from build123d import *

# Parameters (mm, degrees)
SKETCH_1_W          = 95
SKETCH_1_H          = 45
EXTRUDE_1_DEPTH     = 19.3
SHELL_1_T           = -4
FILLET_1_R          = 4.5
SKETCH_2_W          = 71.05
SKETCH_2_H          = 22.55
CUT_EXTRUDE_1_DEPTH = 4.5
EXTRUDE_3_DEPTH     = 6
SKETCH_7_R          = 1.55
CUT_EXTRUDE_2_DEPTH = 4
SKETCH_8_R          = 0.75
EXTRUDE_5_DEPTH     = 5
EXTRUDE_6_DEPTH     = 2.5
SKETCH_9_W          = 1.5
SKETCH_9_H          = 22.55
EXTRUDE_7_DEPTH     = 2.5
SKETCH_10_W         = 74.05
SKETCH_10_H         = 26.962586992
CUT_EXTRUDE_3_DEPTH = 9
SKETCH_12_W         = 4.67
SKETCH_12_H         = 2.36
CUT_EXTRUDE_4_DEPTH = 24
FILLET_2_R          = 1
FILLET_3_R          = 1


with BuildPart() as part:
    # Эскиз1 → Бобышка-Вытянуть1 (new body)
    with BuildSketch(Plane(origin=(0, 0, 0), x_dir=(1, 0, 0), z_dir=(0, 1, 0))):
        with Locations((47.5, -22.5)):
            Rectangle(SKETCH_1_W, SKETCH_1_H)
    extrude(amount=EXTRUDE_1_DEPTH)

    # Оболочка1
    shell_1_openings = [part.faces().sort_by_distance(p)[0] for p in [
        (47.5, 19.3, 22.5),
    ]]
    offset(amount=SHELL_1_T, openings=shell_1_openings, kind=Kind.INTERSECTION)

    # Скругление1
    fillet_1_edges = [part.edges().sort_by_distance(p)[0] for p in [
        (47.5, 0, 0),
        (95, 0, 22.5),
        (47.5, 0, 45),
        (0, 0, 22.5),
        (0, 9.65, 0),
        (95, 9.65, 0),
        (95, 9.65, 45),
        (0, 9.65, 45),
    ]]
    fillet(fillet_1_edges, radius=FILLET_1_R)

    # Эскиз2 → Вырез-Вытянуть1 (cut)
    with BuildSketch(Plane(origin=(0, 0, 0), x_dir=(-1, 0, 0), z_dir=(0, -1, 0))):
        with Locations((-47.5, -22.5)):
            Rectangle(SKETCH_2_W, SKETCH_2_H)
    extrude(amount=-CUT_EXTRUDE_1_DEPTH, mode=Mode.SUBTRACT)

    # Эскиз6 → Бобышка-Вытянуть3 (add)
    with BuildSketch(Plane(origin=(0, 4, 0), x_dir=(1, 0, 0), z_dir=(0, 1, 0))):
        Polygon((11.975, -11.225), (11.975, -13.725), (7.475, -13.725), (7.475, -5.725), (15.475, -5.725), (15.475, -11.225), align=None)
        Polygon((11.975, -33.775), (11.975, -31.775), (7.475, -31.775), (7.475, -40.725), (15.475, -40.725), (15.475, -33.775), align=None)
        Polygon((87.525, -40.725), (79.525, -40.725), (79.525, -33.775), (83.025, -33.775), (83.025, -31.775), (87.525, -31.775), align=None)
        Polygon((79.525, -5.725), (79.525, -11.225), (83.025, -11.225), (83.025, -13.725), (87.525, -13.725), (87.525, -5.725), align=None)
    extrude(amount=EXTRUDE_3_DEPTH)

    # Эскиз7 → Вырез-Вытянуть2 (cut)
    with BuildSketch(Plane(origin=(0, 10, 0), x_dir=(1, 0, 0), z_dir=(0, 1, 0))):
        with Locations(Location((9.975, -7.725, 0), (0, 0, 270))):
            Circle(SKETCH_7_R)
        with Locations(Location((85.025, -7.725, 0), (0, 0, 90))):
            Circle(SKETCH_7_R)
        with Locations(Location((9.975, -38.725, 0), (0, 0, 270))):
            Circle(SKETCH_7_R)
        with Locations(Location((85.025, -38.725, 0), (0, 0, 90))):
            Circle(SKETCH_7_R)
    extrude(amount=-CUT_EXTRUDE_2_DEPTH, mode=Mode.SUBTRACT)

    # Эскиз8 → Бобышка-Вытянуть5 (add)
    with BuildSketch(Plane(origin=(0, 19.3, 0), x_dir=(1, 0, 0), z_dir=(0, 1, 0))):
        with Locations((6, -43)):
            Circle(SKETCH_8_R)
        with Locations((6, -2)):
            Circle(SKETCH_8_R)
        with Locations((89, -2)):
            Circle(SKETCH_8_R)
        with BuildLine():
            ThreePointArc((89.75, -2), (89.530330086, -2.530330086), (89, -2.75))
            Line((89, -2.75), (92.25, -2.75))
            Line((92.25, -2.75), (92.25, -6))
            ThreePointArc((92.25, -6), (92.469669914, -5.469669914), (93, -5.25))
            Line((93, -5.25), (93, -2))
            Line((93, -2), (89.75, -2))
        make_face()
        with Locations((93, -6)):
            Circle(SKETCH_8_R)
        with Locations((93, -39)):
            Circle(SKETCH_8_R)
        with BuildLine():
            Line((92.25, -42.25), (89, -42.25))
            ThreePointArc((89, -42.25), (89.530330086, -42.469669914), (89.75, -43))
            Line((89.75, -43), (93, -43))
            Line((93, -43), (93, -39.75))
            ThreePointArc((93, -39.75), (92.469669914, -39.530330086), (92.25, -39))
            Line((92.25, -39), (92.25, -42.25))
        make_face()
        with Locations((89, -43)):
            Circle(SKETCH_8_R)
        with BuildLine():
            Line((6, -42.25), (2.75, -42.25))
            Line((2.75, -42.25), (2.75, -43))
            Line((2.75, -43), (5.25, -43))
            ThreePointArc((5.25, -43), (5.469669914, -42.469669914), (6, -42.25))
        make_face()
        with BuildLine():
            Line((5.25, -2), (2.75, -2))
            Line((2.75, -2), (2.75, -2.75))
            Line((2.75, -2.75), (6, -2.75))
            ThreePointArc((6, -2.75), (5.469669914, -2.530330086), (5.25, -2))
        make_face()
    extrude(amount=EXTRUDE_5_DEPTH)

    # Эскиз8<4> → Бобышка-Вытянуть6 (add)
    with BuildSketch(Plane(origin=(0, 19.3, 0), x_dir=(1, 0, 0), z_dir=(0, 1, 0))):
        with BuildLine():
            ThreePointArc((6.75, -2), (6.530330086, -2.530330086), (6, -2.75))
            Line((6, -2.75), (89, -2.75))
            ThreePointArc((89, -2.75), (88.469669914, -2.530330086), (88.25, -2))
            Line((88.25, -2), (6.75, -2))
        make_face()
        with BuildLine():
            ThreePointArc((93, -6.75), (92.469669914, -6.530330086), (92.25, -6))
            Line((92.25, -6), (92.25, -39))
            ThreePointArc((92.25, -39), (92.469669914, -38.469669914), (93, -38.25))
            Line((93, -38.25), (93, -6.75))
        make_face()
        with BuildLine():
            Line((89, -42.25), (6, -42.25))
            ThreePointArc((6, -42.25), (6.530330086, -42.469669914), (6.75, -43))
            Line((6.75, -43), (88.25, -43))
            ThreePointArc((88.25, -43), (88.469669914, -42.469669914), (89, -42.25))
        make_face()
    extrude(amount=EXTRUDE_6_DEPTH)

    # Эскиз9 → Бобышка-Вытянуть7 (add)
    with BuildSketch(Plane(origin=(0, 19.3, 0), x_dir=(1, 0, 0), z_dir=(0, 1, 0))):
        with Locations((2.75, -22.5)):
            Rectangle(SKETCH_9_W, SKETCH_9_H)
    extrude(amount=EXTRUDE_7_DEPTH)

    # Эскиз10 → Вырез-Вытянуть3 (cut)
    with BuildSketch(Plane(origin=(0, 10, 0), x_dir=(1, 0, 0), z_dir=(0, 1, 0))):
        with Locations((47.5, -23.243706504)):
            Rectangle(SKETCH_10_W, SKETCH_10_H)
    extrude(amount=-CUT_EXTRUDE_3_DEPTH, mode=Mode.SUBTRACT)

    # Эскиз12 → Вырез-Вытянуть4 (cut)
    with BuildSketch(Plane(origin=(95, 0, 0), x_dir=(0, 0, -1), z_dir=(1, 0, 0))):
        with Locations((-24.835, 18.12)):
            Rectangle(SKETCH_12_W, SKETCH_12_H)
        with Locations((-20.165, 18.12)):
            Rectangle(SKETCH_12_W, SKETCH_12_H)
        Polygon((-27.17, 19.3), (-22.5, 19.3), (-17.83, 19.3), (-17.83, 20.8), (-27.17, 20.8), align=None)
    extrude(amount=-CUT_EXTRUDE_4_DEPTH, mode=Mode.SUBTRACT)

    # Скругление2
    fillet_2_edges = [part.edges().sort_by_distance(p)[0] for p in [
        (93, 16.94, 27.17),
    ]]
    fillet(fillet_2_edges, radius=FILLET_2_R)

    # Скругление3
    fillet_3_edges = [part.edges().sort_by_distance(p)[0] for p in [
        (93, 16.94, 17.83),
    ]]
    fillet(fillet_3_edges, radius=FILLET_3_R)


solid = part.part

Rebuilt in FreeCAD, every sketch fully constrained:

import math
import FreeCAD as App
import Part
import Sketcher

V = App.Vector


def edges_at(feature, points):
    """Names of the edges that pass closest to the given points."""
    edges = feature.Shape.Edges
    near = lambda p: min(range(len(edges)), key=lambda i: edges[i].distToShape(Part.Vertex(*p))[0])
    return sorted({f"Edge{near(p) + 1}" for p in points})


def faces_at(feature, points):
    """Names of the faces that lie closest to the given points."""
    faces = feature.Shape.Faces
    near = lambda p: min(range(len(faces)), key=lambda i: faces[i].distToShape(Part.Vertex(*p))[0])
    return sorted({f"Face{near(p) + 1}" for p in points})


def add_polygon(sketch, points):
    """Adds a closed chain of lines whose ends are joined by coincident constraints."""
    first, n = sketch.GeometryCount, len(points)
    for a, b in zip(points, points[1:] + points[:1]):
        sketch.addGeometry(Part.LineSegment(App.Vector(*a, 0), App.Vector(*b, 0)), False)
    for i in range(n):
        sketch.addConstraint(Sketcher.Constraint("Coincident", first + i, 2, first + (i + 1) % n, 1))

doc = App.newDocument("Part")
body = doc.addObject("PartDesign::Body", "Body")

# Sketch on XZ plane
sketch1 = body.newObject("Sketcher::SketchObject", "Sketch")
sketch1.AttachmentSupport = (doc.getObject("XZ_Plane"), [""])
sketch1.MapMode = "FlatFace"
add_polygon(sketch1, [(0, 0), (0, 45), (95, 45), (95, 0)])  # lines 0-3
sketch1.addConstraint([
    Sketcher.Constraint("Vertical", 0),
    Sketcher.Constraint("Horizontal", 1),
    Sketcher.Constraint("Vertical", 2),
    Sketcher.Constraint("Horizontal", 3),
    Sketcher.Constraint("Coincident", 3, 2, -1, 1),
    Sketcher.Constraint("DistanceX", 1, 1, 1, 2, 95.0),
    Sketcher.Constraint("DistanceY", 0, 1, 0, 2, 45.0),
])
pad1 = body.newObject("PartDesign::Pad", "Pad")
pad1.Profile = sketch1
pad1.Length = 19.3
pad1.Reversed = True
doc.recompute()

thickness = body.newObject("PartDesign::Thickness", "Thickness")
thickness.Base = (pad1, faces_at(pad1, [(47.5, 19.3, 22.5)]))
thickness.Value = 4
thickness.Reversed = True
thickness.Join = "Intersection"
doc.recompute()

fillet = body.newObject("PartDesign::Fillet", "Fillet")
fillet.Base = (thickness, edges_at(thickness, [
    (47.5, 0, 0),
    (95, 0, 22.5),
    (47.5, 0, 45),
    (0, 0, 22.5),
    (0, 9.65, 0),
    (95, 9.65, 0),
    (95, 9.65, 45),
    (0, 9.65, 45),
]))
fillet.Radius = 4.5

# Sketch on XZ plane
sketch2 = body.newObject("Sketcher::SketchObject", "Sketch001")
sketch2.AttachmentSupport = (doc.getObject("XZ_Plane"), [""])
sketch2.MapMode = "FlatFace"
add_polygon(sketch2, [(83.025, 11.225), (83.025, 33.775), (11.975, 33.775), (11.975, 11.225)])  # lines 0-3
sketch2.addConstraint([
    Sketcher.Constraint("Vertical", 0),
    Sketcher.Constraint("Horizontal", 1),
    Sketcher.Constraint("Vertical", 2),
    Sketcher.Constraint("Horizontal", 3),
    Sketcher.Constraint("DistanceX", 1, 2, 1, 1, 71.05),
    Sketcher.Constraint("DistanceY", 0, 1, 0, 2, 22.55),
    Sketcher.Constraint("DistanceX", -1, 1, 0, 2, 83.025),
    Sketcher.Constraint("DistanceY", -1, 1, 0, 2, 33.775),
])
pocket1 = body.newObject("PartDesign::Pocket", "Pocket")
pocket1.Profile = sketch2
pocket1.Length = 4.5

# Sketch on XZ plane
sketch3 = body.newObject("Sketcher::SketchObject", "Sketch002")
sketch3.AttachmentSupport = (doc.getObject("XZ_Plane"), [""])
sketch3.MapMode = "FlatFace"
sketch3.AttachmentOffset = App.Placement(V(0, 0, -4), App.Rotation())
add_polygon(sketch3, [(11.975, 13.725), (11.975, 11.225), (15.475, 11.225), (15.475, 5.725), (7.475, 5.725), (7.475, 13.725)])  # lines 0-5
add_polygon(sketch3, [(11.975, 33.775), (11.975, 31.775), (7.475, 31.775), (7.475, 40.725), (15.475, 40.725), (15.475, 33.775)])  # lines 6-11
add_polygon(sketch3, [(79.525, 40.725), (87.525, 40.725), (87.525, 31.775), (83.025, 31.775), (83.025, 33.775), (79.525, 33.775)])  # lines 12-17
add_polygon(sketch3, [(79.525, 5.725), (79.525, 11.225), (83.025, 11.225), (83.025, 13.725), (87.525, 13.725), (87.525, 5.725)])  # lines 18-23
sketch3.addConstraint([
    Sketcher.Constraint("Vertical", 0),
    Sketcher.Constraint("Horizontal", 1),
    Sketcher.Constraint("Vertical", 2),
    Sketcher.Constraint("Horizontal", 3),
    Sketcher.Constraint("Vertical", 4),
    Sketcher.Constraint("Horizontal", 5),
    Sketcher.Constraint("Vertical", 6),
    Sketcher.Constraint("Horizontal", 7),
    Sketcher.Constraint("Vertical", 8),
    Sketcher.Constraint("Horizontal", 9),
    Sketcher.Constraint("Vertical", 10),
    Sketcher.Constraint("Horizontal", 11),
    Sketcher.Constraint("Horizontal", 12),
    Sketcher.Constraint("Vertical", 13),
    Sketcher.Constraint("Horizontal", 14),
    Sketcher.Constraint("Vertical", 15),
    Sketcher.Constraint("Horizontal", 16),
    Sketcher.Constraint("Vertical", 17),
    Sketcher.Constraint("Vertical", 18),
    Sketcher.Constraint("Horizontal", 19),
    Sketcher.Constraint("Vertical", 20),
    Sketcher.Constraint("Horizontal", 21),
    Sketcher.Constraint("Vertical", 22),
    Sketcher.Constraint("Horizontal", 23),
    Sketcher.Constraint("Horizontal", 9, 2, 12, 2),
    Sketcher.Constraint("Horizontal", 7, 2, 13, 2),
    Sketcher.Constraint("Horizontal", 11, 2, 15, 2),
    Sketcher.Constraint("Horizontal", 1, 2, 18, 2),
    Sketcher.Constraint("Horizontal", 5, 2, 20, 2),
    Sketcher.Constraint("Horizontal", 3, 2, 22, 2),
    Sketcher.Constraint("Vertical", 5, 2, 6, 2),
    Sketcher.Constraint("Vertical", 4, 2, 7, 2),
    Sketcher.Constraint("Vertical", 2, 2, 9, 2),
    Sketcher.Constraint("Vertical", 17, 2, 18, 2),
    Sketcher.Constraint("Vertical", 15, 2, 19, 2),
    Sketcher.Constraint("Vertical", 13, 2, 21, 2),
    Sketcher.Constraint("Equal", 9, 12),
    Sketcher.Constraint("Equal", 7, 14),
    Sketcher.Constraint("Equal", 23, 4),
    Sketcher.Constraint("DistanceX", 3, 2, 3, 1, 8.0),
    Sketcher.Constraint("DistanceY", 6, 2, 6, 1, 2.0),
    Sketcher.Constraint("DistanceX", 1, 1, 1, 2, 3.5),
    Sketcher.Constraint("DistanceY", 0, 2, 0, 1, 2.5),
    Sketcher.Constraint("DistanceY", 4, 2, 8, 2, 27.0),
    Sketcher.Constraint("DistanceY", 8, 1, 8, 2, 8.95),
    Sketcher.Constraint("DistanceX", 9, 2, 12, 2, 72.05),
    Sketcher.Constraint("DistanceX", -1, 1, 0, 2, 11.975),
    Sketcher.Constraint("DistanceY", -1, 1, 0, 2, 11.225),
])
pad2 = body.newObject("PartDesign::Pad", "Pad001")
pad2.Profile = sketch3
pad2.Length = 6
pad2.Reversed = True

# Sketch on XZ plane
sketch4 = body.newObject("Sketcher::SketchObject", "Sketch003")
sketch4.AttachmentSupport = (doc.getObject("XZ_Plane"), [""])
sketch4.MapMode = "FlatFace"
sketch4.AttachmentOffset = App.Placement(V(0, 0, -10), App.Rotation())
sketch4.addGeometry([
    Part.Circle(V(9.975, 7.725, 0), V(0, 0, 1), 1.55),
    Part.Circle(V(85.025, 7.725, 0), V(0, 0, 1), 1.55),
    Part.Circle(V(9.975, 38.725, 0), V(0, 0, 1), 1.55),
    Part.Circle(V(85.025, 38.725, 0), V(0, 0, 1), 1.55),
], False)
sketch4.addConstraint([
    Sketcher.Constraint("Equal", 0, 1),
    Sketcher.Constraint("Equal", 1, 2),
    Sketcher.Constraint("Equal", 2, 3),
    Sketcher.Constraint("Horizontal", 0, 3, 1, 3),
    Sketcher.Constraint("Horizontal", 2, 3, 3, 3),
    Sketcher.Constraint("Vertical", 0, 3, 2, 3),
    Sketcher.Constraint("Vertical", 1, 3, 3, 3),
    Sketcher.Constraint("Diameter", 0, 3.1),
    Sketcher.Constraint("DistanceY", 0, 3, 2, 3, 31.0),
    Sketcher.Constraint("DistanceX", 0, 3, 1, 3, 75.05),
    Sketcher.Constraint("DistanceX", -1, 1, 0, 3, 9.975),
    Sketcher.Constraint("DistanceY", -1, 1, 0, 3, 7.725),
])
pocket2 = body.newObject("PartDesign::Pocket", "Pocket001")
pocket2.Profile = sketch4
pocket2.Length = 4
pocket2.Reversed = True

# Sketch on XZ plane
sketch5 = body.newObject("Sketcher::SketchObject", "Sketch004")
sketch5.AttachmentSupport = (doc.getObject("XZ_Plane"), [""])
sketch5.MapMode = "FlatFace"
sketch5.AttachmentOffset = App.Placement(V(0, 0, -19.3), App.Rotation())
sketch5.addGeometry([
    Part.LineSegment(V(6, 42.25, 0), V(2.75, 42.25, 0)),  # 0
    Part.LineSegment(V(2.75, 42.25, 0), V(2.75, 43, 0)),  # 1
    Part.LineSegment(V(2.75, 43, 0), V(5.25, 43, 0)),  # 2
    Part.ArcOfCircle(Part.Circle(V(6, 43, 0), V(0, 0, 1), 0.75), math.radians(-90), math.radians(180)),  # 3
    Part.LineSegment(V(5.25, 2, 0), V(2.75, 2, 0)),  # 4
    Part.LineSegment(V(2.75, 2, 0), V(2.75, 2.75, 0)),  # 5
    Part.LineSegment(V(2.75, 2.75, 0), V(6, 2.75, 0)),  # 6
    Part.ArcOfCircle(Part.Circle(V(6, 2, 0), V(0, 0, 1), 0.75), math.radians(180), math.radians(450)),  # 7
    Part.ArcOfCircle(Part.Circle(V(89, 2, 0), V(0, 0, 1), 0.75), math.radians(90), math.radians(360)),  # 8
    Part.LineSegment(V(89, 2.75, 0), V(92.25, 2.75, 0)),  # 9
    Part.LineSegment(V(92.25, 2.75, 0), V(92.25, 6, 0)),  # 10
    Part.ArcOfCircle(Part.Circle(V(93, 6, 0), V(0, 0, 1), 0.75), math.radians(-90), math.radians(180)),  # 11
    Part.LineSegment(V(93, 5.25, 0), V(93, 2, 0)),  # 12
    Part.LineSegment(V(93, 2, 0), V(89.75, 2, 0)),  # 13
    Part.LineSegment(V(92.25, 39, 0), V(92.25, 42.25, 0)),  # 14
    Part.LineSegment(V(92.25, 42.25, 0), V(89, 42.25, 0)),  # 15
    Part.ArcOfCircle(Part.Circle(V(89, 43, 0), V(0, 0, 1), 0.75), math.radians(0), math.radians(270)),  # 16
    Part.LineSegment(V(89.75, 43, 0), V(93, 43, 0)),  # 17
    Part.LineSegment(V(93, 43, 0), V(93, 39.75, 0)),  # 18
    Part.ArcOfCircle(Part.Circle(V(93, 39, 0), V(0, 0, 1), 0.75), math.radians(180), math.radians(450)),  # 19
], False)
sketch5.addConstraint([
    Sketcher.Constraint("Coincident", 0, 2, 1, 1),
    Sketcher.Constraint("Coincident", 1, 2, 2, 1),
    Sketcher.Constraint("Coincident", 2, 2, 3, 2),
    Sketcher.Constraint("Tangent", 3, 1, 0, 1),
    Sketcher.Constraint("Coincident", 4, 2, 5, 1),
    Sketcher.Constraint("Coincident", 5, 2, 6, 1),
    Sketcher.Constraint("Tangent", 6, 2, 7, 2),
    Sketcher.Constraint("Coincident", 7, 1, 4, 1),
    Sketcher.Constraint("Tangent", 8, 1, 9, 1),
    Sketcher.Constraint("Coincident", 9, 2, 10, 1),
    Sketcher.Constraint("Tangent", 10, 2, 11, 2),
    Sketcher.Constraint("Coincident", 11, 1, 12, 1),
    Sketcher.Constraint("Coincident", 12, 2, 13, 1),
    Sketcher.Constraint("Coincident", 13, 2, 8, 2),
    Sketcher.Constraint("Coincident", 14, 2, 15, 1),
    Sketcher.Constraint("Tangent", 15, 2, 16, 2),
    Sketcher.Constraint("Coincident", 16, 1, 17, 1),
    Sketcher.Constraint("Coincident", 17, 2, 18, 1),
    Sketcher.Constraint("Coincident", 18, 2, 19, 2),
    Sketcher.Constraint("Tangent", 19, 1, 14, 1),
    Sketcher.Constraint("Horizontal", 0),
    Sketcher.Constraint("Vertical", 1),
    Sketcher.Constraint("Horizontal", 2),
    Sketcher.Constraint("Horizontal", 4),
    Sketcher.Constraint("Vertical", 5),
    Sketcher.Constraint("Horizontal", 6),
    Sketcher.Constraint("Horizontal", 9),
    Sketcher.Constraint("Vertical", 10),
    Sketcher.Constraint("Vertical", 12),
    Sketcher.Constraint("Horizontal", 13),
    Sketcher.Constraint("Vertical", 14),
    Sketcher.Constraint("Horizontal", 15),
    Sketcher.Constraint("Horizontal", 17),
    Sketcher.Constraint("Vertical", 18),
    Sketcher.Constraint("Equal", 3, 7),
    Sketcher.Constraint("Equal", 7, 8),
    Sketcher.Constraint("Equal", 8, 11),
    Sketcher.Constraint("Equal", 11, 16),
    Sketcher.Constraint("Equal", 16, 19),
    Sketcher.Constraint("Horizontal", 7, 3, 8, 3),
    Sketcher.Constraint("Horizontal", 3, 3, 16, 3),
    Sketcher.Constraint("Horizontal", 16, 3, 1, 2),
    Sketcher.Constraint("Horizontal", 8, 3, 4, 2),
    Sketcher.Constraint("Horizontal", 7, 1, 12, 2),
    Sketcher.Constraint("Horizontal", 2, 2, 16, 1),
    Sketcher.Constraint("Vertical", 3, 3, 7, 3),
    Sketcher.Constraint("Vertical", 8, 3, 16, 3),
    Sketcher.Constraint("Vertical", 11, 3, 19, 3),
    Sketcher.Constraint("Vertical", 1, 2, 4, 2),
    Sketcher.Constraint("Vertical", 19, 3, 11, 1),
    Sketcher.Constraint("Vertical", 12, 2, 17, 2),
    Sketcher.Constraint("Equal", 6, 9),
    Sketcher.Constraint("Equal", 17, 10),
    Sketcher.Constraint("Equal", 12, 14),
    Sketcher.Constraint("Radius", 3, 0.75),
    Sketcher.Constraint("DistanceX", 2, 1, 2, 2, 2.5),
    Sketcher.Constraint("DistanceX", -1, 1, 3, 3, 6.0),
    Sketcher.Constraint("DistanceY", -1, 1, 3, 3, 43.0),
    Sketcher.Constraint("DistanceY", -1, 1, 7, 3, 2.0),
    Sketcher.Constraint("DistanceX", -1, 1, 8, 3, 89.0),
])
pad3 = body.newObject("PartDesign::Pad", "Pad002")
pad3.Profile = sketch5
pad3.Length = 5
pad3.Reversed = True

# Sketch on XZ plane
sketch6 = body.newObject("Sketcher::SketchObject", "Sketch005")
sketch6.AttachmentSupport = (doc.getObject("XZ_Plane"), [""])
sketch6.MapMode = "FlatFace"
sketch6.AttachmentOffset = App.Placement(V(0, 0, -19.3), App.Rotation())
sketch6.addGeometry([
    Part.ArcOfCircle(Part.Circle(V(6, 2, 0), V(0, 0, 1), 0.75), math.radians(0), math.radians(90)),  # 0
    Part.LineSegment(V(6, 2.75, 0), V(89, 2.75, 0)),  # 1
    Part.ArcOfCircle(Part.Circle(V(89, 2, 0), V(0, 0, 1), 0.75), math.radians(90), math.radians(180)),  # 2
    Part.LineSegment(V(88.25, 2, 0), V(6.75, 2, 0)),  # 3
    Part.ArcOfCircle(Part.Circle(V(93, 6, 0), V(0, 0, 1), 0.75), math.radians(90), math.radians(180)),  # 4
    Part.LineSegment(V(92.25, 6, 0), V(92.25, 39, 0)),  # 5
    Part.ArcOfCircle(Part.Circle(V(93, 39, 0), V(0, 0, 1), 0.75), math.radians(180), math.radians(270)),  # 6
    Part.LineSegment(V(93, 38.25, 0), V(93, 6.75, 0)),  # 7
    Part.LineSegment(V(89, 42.25, 0), V(6, 42.25, 0)),  # 8
    Part.ArcOfCircle(Part.Circle(V(6, 43, 0), V(0, 0, 1), 0.75), math.radians(-90), math.radians(0)),  # 9
    Part.LineSegment(V(6.75, 43, 0), V(88.25, 43, 0)),  # 10
    Part.ArcOfCircle(Part.Circle(V(89, 43, 0), V(0, 0, 1), 0.75), math.radians(180), math.radians(270)),  # 11
], False)
sketch6.addConstraint([
    Sketcher.Constraint("Tangent", 0, 2, 1, 1),
    Sketcher.Constraint("Tangent", 1, 2, 2, 1),
    Sketcher.Constraint("Coincident", 2, 2, 3, 1),
    Sketcher.Constraint("Coincident", 3, 2, 0, 1),
    Sketcher.Constraint("Tangent", 4, 2, 5, 1),
    Sketcher.Constraint("Tangent", 5, 2, 6, 1),
    Sketcher.Constraint("Coincident", 6, 2, 7, 1),
    Sketcher.Constraint("Coincident", 7, 2, 4, 1),
    Sketcher.Constraint("Tangent", 8, 2, 9, 1),
    Sketcher.Constraint("Coincident", 9, 2, 10, 1),
    Sketcher.Constraint("Coincident", 10, 2, 11, 1),
    Sketcher.Constraint("Tangent", 11, 2, 8, 1),
    Sketcher.Constraint("Horizontal", 1),
    Sketcher.Constraint("Horizontal", 3),
    Sketcher.Constraint("Vertical", 5),
    Sketcher.Constraint("Vertical", 7),
    Sketcher.Constraint("Horizontal", 8),
    Sketcher.Constraint("Horizontal", 10),
    Sketcher.Constraint("Equal", 0, 2),
    Sketcher.Constraint("Equal", 2, 4),
    Sketcher.Constraint("Equal", 4, 6),
    Sketcher.Constraint("Equal", 6, 9),
    Sketcher.Constraint("Equal", 9, 11),
    Sketcher.Constraint("Horizontal", 0, 3, 2, 2),
    Sketcher.Constraint("Horizontal", 11, 3, 9, 2),
    Sketcher.Constraint("Vertical", 0, 3, 9, 3),
    Sketcher.Constraint("Vertical", 2, 3, 11, 3),
    Sketcher.Constraint("Vertical", 4, 3, 6, 2),
    Sketcher.Constraint("DistanceX", 1, 1, 1, 2, 83.0),
    Sketcher.Constraint("DistanceY", 5, 1, 5, 2, 33.0),
    Sketcher.Constraint("Radius", 0, 0.75),
    Sketcher.Constraint("DistanceX", -1, 1, 0, 3, 6.0),
    Sketcher.Constraint("DistanceY", -1, 1, 0, 3, 2.0),
    Sketcher.Constraint("DistanceX", -1, 1, 4, 3, 93.0),
    Sketcher.Constraint("DistanceY", -1, 1, 4, 3, 6.0),
    Sketcher.Constraint("DistanceY", -1, 1, 9, 3, 43.0),
])
pad4 = body.newObject("PartDesign::Pad", "Pad003")
pad4.Profile = sketch6
pad4.Length = 2.5
pad4.Reversed = True

# Sketch on XZ plane
sketch7 = body.newObject("Sketcher::SketchObject", "Sketch006")
sketch7.AttachmentSupport = (doc.getObject("XZ_Plane"), [""])
sketch7.MapMode = "FlatFace"
sketch7.AttachmentOffset = App.Placement(V(0, 0, -19.3), App.Rotation())
add_polygon(sketch7, [(2, 11.225), (2, 33.775), (3.5, 33.775), (3.5, 11.225)])  # lines 0-3
sketch7.addConstraint([
    Sketcher.Constraint("Vertical", 0),
    Sketcher.Constraint("Horizontal", 1),
    Sketcher.Constraint("Vertical", 2),
    Sketcher.Constraint("Horizontal", 3),
    Sketcher.Constraint("DistanceX", 1, 1, 1, 2, 1.5),
    Sketcher.Constraint("DistanceX", -1, 1, 0, 2, 2.0),
    Sketcher.Constraint("DistanceY", 0, 1, 0, 2, 22.55),
    Sketcher.Constraint("DistanceY", -1, 1, 0, 2, 33.775),
])
pad5 = body.newObject("PartDesign::Pad", "Pad004")
pad5.Profile = sketch7
pad5.Length = 2.5
pad5.Reversed = True

# Sketch on XZ plane
sketch8 = body.newObject("Sketcher::SketchObject", "Sketch007")
sketch8.AttachmentSupport = (doc.getObject("XZ_Plane"), [""])
sketch8.MapMode = "FlatFace"
sketch8.AttachmentOffset = App.Placement(V(0, 0, -10), App.Rotation())
add_polygon(sketch8, [(10.475, 9.762413), (10.475, 36.725), (84.525, 36.725), (84.525, 9.762413)])  # lines 0-3
sketch8.addConstraint([
    Sketcher.Constraint("Vertical", 0),
    Sketcher.Constraint("Horizontal", 1),
    Sketcher.Constraint("Vertical", 2),
    Sketcher.Constraint("Horizontal", 3),
    Sketcher.Constraint("DistanceX", 1, 1, 1, 2, 74.05),
    Sketcher.Constraint("DistanceX", -1, 1, 0, 2, 10.475),
    Sketcher.Constraint("DistanceY", -1, 1, 0, 2, 36.725),
    Sketcher.Constraint("DistanceY", 0, 1, 0, 2, 26.962587),
])
pocket3 = body.newObject("PartDesign::Pocket", "Pocket002")
pocket3.Profile = sketch8
pocket3.Length = 9
pocket3.Reversed = True

# Sketch on YZ plane
sketch9 = body.newObject("Sketcher::SketchObject", "Sketch008")
sketch9.AttachmentSupport = (doc.getObject("YZ_Plane"), [""])
sketch9.MapMode = "FlatFace"
sketch9.AttachmentOffset = App.Placement(V(0, 0, 95), App.Rotation())
add_polygon(sketch9, [(16.94, 27.17), (16.94, 17.83), (20.8, 17.83), (20.8, 27.17)])  # lines 0-3
sketch9.addConstraint([
    Sketcher.Constraint("Vertical", 0),
    Sketcher.Constraint("Horizontal", 1),
    Sketcher.Constraint("Vertical", 2),
    Sketcher.Constraint("Horizontal", 3),
    Sketcher.Constraint("DistanceX", 1, 1, 1, 2, 3.86),
    Sketcher.Constraint("DistanceY", 0, 2, 0, 1, 9.34),
    Sketcher.Constraint("DistanceX", -1, 1, 1, 2, 20.8),
    Sketcher.Constraint("DistanceY", -1, 1, 0, 2, 17.83),
])
pocket4 = body.newObject("PartDesign::Pocket", "Pocket003")
pocket4.Profile = sketch9
pocket4.Length = 24
doc.recompute()

fillet2 = body.newObject("PartDesign::Fillet", "Fillet001")
fillet2.Base = (pocket4, edges_at(pocket4, [(93, 16.94, 27.17)]))
fillet2.Radius = 1
doc.recompute()

fillet3 = body.newObject("PartDesign::Fillet", "Fillet002")
fillet3.Base = (fillet2, edges_at(fillet2, [(93, 16.94, 17.83)]))
fillet3.Radius = 1

doc.recompute()
